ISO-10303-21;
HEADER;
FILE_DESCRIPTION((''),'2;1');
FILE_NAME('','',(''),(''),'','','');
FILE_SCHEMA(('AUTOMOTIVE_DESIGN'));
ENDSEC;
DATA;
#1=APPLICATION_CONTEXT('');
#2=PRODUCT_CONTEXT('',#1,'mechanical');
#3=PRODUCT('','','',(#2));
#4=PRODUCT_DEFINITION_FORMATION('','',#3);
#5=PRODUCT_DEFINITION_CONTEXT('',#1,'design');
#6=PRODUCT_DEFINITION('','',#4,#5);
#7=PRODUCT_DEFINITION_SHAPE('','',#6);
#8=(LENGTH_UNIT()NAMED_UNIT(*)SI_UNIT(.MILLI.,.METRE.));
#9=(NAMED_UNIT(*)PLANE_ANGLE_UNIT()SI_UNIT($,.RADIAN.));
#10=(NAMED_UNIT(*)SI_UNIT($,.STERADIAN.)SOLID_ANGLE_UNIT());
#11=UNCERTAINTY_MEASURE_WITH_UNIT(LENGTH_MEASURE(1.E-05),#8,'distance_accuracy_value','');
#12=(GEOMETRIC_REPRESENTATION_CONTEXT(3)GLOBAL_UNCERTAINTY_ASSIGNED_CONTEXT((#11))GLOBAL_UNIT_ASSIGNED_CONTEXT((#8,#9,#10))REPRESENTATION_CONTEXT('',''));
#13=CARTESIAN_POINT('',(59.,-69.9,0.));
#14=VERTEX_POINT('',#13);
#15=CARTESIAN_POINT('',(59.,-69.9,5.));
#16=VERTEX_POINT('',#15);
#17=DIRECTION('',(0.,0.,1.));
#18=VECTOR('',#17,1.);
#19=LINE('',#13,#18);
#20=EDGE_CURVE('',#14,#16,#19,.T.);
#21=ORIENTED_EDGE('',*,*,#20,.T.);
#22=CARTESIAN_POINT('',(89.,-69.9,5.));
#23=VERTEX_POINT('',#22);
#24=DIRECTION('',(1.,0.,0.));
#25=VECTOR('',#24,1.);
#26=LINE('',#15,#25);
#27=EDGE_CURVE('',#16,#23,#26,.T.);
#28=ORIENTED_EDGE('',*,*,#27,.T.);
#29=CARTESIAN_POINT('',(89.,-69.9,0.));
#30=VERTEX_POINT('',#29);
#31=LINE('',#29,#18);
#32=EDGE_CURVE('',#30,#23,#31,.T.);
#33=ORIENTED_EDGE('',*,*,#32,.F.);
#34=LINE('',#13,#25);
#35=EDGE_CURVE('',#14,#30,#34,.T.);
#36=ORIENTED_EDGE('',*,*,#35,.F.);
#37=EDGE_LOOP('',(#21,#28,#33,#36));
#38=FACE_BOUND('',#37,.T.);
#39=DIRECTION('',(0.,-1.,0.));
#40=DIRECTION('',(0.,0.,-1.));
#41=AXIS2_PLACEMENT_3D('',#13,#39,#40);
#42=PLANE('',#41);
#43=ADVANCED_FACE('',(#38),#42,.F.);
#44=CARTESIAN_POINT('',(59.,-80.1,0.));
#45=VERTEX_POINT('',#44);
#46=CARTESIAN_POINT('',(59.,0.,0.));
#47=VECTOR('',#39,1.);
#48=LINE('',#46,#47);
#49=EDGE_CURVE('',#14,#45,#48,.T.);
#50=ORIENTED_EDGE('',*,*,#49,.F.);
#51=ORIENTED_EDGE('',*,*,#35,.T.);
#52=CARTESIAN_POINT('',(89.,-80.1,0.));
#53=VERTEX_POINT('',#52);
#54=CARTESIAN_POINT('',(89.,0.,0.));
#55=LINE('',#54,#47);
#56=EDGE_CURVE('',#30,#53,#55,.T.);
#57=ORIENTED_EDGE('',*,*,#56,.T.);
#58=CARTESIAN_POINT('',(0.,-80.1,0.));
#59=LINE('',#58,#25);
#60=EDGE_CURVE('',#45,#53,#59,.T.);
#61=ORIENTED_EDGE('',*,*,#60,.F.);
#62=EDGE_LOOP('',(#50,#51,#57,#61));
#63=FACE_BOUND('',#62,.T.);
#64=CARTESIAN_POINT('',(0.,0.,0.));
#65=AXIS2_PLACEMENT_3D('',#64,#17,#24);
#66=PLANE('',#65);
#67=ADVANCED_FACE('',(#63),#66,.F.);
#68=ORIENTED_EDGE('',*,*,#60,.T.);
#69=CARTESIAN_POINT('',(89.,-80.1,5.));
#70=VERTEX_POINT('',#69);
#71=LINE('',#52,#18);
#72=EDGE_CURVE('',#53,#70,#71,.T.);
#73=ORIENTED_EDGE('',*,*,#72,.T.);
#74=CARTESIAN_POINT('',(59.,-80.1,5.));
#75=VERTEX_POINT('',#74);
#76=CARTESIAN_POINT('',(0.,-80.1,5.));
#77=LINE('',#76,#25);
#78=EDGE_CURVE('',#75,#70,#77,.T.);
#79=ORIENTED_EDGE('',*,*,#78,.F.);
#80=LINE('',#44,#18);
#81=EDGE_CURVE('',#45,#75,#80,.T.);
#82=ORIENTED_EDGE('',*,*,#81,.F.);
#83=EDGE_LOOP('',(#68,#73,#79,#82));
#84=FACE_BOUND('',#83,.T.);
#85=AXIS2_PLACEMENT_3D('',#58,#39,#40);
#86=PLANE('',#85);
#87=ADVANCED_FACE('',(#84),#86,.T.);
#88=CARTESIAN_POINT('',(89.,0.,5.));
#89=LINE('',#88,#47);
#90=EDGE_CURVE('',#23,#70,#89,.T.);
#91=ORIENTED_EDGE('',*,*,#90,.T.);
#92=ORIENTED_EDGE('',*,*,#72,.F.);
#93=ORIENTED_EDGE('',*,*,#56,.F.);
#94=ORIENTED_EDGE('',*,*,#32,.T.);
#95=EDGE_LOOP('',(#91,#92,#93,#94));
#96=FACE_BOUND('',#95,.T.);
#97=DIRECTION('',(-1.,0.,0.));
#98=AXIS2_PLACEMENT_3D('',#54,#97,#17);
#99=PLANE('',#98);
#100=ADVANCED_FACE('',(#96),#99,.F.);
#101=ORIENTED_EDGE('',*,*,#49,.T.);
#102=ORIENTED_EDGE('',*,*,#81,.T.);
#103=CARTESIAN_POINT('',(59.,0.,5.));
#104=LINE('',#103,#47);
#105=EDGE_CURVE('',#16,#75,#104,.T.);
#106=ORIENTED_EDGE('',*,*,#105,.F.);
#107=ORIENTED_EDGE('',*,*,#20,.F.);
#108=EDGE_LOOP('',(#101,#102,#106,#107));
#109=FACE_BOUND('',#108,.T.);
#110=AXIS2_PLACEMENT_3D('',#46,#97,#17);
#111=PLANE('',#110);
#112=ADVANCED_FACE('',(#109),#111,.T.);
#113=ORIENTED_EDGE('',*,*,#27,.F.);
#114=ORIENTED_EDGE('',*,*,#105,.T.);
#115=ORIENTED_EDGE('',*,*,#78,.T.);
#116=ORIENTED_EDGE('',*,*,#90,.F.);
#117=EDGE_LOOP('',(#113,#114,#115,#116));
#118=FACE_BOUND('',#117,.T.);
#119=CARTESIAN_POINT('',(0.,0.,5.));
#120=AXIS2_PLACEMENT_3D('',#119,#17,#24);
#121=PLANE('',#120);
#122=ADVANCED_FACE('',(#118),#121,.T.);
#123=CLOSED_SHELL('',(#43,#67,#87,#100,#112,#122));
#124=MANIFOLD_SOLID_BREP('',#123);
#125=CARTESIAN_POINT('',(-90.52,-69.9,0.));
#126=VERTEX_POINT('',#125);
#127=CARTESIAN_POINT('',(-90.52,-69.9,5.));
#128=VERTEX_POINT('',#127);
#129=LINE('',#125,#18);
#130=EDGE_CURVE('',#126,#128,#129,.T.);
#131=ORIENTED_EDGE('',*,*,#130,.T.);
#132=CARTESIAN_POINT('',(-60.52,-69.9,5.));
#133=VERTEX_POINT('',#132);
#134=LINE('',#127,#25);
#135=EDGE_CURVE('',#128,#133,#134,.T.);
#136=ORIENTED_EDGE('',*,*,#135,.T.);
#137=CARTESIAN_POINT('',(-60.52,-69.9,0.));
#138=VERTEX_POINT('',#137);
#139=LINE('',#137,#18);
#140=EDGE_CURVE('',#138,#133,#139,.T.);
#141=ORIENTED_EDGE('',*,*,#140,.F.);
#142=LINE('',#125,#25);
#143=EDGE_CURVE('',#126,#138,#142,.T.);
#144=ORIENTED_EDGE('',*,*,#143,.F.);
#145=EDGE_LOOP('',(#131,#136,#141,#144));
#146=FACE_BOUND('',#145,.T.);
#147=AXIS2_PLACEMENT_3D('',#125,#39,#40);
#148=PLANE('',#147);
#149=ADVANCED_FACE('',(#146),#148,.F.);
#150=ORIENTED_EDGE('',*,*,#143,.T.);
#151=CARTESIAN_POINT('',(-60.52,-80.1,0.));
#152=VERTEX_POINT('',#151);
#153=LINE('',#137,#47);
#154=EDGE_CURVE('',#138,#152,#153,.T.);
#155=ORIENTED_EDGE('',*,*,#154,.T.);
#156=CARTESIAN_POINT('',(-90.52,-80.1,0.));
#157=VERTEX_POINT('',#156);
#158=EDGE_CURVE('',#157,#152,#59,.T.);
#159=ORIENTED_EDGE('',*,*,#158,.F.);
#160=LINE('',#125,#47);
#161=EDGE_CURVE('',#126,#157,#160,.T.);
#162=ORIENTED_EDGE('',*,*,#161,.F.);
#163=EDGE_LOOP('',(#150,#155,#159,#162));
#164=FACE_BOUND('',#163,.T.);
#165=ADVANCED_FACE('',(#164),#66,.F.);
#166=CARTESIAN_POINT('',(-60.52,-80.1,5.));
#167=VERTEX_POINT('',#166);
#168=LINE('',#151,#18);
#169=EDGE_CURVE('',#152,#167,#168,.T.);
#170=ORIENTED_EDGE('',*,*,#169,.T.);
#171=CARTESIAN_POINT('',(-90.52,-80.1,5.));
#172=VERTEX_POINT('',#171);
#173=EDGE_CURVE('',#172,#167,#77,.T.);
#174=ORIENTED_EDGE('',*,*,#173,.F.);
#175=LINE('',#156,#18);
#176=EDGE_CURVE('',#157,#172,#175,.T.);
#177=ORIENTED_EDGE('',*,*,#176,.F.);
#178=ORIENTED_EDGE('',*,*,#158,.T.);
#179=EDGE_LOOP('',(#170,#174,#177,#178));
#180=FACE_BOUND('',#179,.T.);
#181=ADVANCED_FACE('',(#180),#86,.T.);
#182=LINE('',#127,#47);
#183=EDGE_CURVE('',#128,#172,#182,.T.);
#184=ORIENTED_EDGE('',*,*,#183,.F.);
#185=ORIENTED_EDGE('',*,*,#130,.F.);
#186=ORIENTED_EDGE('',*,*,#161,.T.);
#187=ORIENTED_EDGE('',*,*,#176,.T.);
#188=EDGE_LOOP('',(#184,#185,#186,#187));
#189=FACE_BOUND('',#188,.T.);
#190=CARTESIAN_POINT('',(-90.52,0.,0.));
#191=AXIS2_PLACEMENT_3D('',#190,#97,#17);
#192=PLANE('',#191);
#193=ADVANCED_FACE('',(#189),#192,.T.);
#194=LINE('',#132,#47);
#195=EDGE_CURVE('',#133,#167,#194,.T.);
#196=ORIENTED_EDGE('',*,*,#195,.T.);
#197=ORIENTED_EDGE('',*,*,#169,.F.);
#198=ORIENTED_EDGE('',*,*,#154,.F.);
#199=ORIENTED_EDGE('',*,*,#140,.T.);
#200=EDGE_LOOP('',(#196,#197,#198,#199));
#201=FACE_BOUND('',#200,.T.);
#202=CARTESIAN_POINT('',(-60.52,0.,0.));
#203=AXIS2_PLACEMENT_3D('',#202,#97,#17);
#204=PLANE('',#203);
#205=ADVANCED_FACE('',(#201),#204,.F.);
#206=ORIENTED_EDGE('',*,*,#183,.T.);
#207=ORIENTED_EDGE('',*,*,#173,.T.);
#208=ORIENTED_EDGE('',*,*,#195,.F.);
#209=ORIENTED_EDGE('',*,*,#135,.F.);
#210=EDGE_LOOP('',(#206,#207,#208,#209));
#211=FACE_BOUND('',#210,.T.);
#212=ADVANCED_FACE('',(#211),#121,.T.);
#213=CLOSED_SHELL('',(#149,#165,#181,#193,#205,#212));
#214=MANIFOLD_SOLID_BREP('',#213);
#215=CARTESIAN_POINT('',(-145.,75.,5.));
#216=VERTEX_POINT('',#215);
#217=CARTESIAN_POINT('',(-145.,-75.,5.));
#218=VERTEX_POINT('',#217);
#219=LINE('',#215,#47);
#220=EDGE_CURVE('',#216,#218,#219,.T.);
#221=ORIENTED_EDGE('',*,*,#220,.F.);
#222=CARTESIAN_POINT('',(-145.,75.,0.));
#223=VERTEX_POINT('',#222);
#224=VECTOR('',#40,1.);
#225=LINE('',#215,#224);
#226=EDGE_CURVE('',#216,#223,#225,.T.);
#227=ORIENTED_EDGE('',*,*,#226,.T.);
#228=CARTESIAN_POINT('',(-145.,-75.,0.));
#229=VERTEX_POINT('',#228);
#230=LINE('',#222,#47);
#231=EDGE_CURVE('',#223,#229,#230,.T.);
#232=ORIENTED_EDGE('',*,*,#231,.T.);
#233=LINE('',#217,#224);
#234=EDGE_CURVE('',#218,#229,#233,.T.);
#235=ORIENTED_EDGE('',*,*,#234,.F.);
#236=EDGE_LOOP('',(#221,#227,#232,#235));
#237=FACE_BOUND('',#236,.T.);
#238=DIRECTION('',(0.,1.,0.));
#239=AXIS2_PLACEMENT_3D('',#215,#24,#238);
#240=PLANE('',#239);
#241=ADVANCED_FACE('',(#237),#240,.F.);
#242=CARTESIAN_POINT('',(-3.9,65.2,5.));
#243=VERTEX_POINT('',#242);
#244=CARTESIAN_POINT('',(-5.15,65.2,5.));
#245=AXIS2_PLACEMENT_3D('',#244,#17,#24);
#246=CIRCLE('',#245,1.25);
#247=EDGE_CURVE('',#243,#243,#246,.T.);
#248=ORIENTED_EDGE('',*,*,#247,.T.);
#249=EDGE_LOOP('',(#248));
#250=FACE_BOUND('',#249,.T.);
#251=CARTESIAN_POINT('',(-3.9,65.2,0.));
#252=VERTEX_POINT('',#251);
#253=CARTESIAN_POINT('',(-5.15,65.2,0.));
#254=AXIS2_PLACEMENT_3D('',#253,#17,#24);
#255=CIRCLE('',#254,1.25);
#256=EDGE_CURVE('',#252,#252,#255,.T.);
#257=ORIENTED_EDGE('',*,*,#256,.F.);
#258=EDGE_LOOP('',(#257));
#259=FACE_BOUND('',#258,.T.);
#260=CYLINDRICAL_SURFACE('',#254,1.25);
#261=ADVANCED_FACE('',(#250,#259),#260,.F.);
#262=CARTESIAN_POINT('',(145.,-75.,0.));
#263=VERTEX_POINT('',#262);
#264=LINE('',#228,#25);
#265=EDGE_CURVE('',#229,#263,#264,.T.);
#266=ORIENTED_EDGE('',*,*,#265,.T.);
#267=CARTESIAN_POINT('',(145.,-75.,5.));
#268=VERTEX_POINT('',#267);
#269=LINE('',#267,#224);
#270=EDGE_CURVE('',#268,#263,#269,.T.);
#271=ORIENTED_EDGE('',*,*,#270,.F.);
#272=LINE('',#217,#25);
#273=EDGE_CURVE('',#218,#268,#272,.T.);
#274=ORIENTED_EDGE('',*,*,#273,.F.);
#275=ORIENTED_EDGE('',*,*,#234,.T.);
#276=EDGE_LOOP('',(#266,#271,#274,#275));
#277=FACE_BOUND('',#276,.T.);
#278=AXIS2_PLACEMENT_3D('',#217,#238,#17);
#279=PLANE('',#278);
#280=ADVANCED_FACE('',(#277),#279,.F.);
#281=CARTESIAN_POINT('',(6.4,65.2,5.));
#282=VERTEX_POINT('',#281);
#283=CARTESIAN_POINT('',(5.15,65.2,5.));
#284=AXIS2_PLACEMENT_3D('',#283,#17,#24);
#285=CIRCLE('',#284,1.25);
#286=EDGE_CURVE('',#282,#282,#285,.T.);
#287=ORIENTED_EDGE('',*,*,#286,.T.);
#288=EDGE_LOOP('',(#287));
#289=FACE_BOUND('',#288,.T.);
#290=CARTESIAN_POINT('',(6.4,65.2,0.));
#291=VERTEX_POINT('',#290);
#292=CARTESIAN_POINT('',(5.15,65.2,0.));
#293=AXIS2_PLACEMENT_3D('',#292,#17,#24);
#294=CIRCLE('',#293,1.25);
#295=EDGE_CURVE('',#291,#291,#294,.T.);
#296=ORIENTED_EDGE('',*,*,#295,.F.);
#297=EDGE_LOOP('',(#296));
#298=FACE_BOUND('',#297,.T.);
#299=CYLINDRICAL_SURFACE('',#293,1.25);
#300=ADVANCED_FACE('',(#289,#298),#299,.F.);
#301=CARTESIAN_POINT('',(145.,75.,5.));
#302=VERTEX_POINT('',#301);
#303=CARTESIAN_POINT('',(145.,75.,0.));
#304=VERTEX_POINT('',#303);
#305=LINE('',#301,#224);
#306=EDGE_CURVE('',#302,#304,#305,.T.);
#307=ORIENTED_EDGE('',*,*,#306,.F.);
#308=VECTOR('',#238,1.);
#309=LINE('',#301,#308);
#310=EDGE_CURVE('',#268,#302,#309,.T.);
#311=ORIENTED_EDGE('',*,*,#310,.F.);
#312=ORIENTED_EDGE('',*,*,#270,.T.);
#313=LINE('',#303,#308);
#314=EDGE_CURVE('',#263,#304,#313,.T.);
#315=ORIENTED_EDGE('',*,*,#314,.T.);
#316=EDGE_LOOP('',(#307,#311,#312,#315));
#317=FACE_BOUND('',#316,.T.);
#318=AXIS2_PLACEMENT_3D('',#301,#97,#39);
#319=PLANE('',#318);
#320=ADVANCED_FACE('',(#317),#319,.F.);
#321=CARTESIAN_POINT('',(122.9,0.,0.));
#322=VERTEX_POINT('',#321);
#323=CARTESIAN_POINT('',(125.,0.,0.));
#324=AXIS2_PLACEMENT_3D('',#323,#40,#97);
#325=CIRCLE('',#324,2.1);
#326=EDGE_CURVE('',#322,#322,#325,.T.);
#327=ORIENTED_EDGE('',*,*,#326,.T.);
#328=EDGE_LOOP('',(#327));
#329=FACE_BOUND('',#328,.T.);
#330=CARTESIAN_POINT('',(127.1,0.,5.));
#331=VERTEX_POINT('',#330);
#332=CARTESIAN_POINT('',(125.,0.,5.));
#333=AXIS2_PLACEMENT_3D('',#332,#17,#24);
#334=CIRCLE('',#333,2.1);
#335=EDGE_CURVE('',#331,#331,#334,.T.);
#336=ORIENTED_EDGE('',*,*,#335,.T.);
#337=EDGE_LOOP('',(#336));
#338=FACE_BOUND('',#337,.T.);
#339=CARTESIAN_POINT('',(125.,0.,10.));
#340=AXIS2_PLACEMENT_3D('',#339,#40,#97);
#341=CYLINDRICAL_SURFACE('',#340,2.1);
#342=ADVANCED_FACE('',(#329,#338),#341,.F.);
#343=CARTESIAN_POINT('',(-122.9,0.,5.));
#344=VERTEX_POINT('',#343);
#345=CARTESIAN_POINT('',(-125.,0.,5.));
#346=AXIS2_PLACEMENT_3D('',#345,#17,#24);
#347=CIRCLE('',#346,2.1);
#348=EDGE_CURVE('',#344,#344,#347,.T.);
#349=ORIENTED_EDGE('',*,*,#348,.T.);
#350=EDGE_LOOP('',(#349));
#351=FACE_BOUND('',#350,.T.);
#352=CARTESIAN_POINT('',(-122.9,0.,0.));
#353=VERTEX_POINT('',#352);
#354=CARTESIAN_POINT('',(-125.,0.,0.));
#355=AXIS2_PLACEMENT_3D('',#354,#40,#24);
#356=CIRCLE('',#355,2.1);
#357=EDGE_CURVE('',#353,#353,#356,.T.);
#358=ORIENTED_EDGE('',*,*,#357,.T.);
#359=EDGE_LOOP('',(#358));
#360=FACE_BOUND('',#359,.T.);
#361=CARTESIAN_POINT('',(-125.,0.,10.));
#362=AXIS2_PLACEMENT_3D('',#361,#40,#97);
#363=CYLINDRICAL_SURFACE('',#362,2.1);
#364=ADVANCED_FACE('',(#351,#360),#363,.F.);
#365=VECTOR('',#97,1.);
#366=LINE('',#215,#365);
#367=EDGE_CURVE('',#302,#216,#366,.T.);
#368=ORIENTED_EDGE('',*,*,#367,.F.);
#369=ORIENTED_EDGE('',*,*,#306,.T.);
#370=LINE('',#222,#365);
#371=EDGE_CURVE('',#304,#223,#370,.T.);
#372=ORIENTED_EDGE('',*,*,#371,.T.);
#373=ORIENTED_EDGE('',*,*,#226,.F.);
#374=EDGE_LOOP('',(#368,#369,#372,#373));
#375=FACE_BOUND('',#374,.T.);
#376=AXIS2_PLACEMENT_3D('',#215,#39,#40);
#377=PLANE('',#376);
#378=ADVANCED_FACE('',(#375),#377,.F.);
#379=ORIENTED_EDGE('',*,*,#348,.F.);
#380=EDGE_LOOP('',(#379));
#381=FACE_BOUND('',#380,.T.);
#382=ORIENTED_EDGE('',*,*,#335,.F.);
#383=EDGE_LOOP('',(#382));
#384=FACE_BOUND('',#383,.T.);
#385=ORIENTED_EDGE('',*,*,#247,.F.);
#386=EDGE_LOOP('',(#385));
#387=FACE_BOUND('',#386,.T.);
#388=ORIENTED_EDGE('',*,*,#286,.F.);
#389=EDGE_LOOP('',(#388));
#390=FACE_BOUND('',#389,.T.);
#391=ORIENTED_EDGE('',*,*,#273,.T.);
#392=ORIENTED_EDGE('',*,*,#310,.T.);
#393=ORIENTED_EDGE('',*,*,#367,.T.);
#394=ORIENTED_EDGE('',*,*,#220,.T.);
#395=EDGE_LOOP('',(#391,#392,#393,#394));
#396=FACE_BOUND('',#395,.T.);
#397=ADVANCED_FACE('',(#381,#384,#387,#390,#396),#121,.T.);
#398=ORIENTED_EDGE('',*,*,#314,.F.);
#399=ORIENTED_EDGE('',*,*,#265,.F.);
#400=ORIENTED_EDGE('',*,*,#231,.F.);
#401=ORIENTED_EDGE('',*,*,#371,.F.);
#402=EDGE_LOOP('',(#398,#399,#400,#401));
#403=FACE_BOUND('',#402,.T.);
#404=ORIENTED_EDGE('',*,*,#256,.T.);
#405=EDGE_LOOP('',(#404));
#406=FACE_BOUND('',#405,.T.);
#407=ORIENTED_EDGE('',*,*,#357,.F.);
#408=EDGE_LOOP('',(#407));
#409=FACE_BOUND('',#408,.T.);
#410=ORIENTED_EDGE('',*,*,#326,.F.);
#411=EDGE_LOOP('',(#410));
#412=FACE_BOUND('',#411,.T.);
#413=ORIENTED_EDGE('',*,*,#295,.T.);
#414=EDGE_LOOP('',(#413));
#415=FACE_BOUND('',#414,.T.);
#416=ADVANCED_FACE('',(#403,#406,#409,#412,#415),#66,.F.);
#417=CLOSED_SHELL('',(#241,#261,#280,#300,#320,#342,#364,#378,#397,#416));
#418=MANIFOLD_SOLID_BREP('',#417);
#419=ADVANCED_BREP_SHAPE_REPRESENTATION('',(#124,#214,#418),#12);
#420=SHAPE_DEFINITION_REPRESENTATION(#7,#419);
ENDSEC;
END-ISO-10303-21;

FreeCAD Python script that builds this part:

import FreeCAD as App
import Part
import Sketcher

V = App.Vector

doc = App.newDocument("Part")
body = doc.addObject("PartDesign::Body", "Body")

sketch1 = body.newObject("Sketcher::SketchObject", "Sketch")
sketch1.AttachmentSupport = (doc.getObject("XY_Plane"), [""])
sketch1.MapMode = "FlatFace"
sketch1.addGeometry([
    Part.LineSegment(V(-145, 75, 0), V(-145, -75, 0)),
    Part.LineSegment(V(-145, -75, 0), V(145, -75, 0)),
    Part.LineSegment(V(145, -75, 0), V(145, 75, 0)),
    Part.LineSegment(V(145, 75, 0), V(-145, 75, 0)),
], False)
sketch1.addConstraint([
    Sketcher.Constraint("Coincident", 0, 2, 1, 1),
    Sketcher.Constraint("Coincident", 1, 2, 2, 1),
    Sketcher.Constraint("Coincident", 2, 2, 3, 1),
    Sketcher.Constraint("Coincident", 3, 2, 0, 1),
    Sketcher.Constraint("Vertical", 0),
    Sketcher.Constraint("Horizontal", 1),
    Sketcher.Constraint("Vertical", 2),
    Sketcher.Constraint("Horizontal", 3),
    Sketcher.Constraint("Symmetric", 0, 2, 2, 2, -1, 1),
    Sketcher.Constraint("DistanceX", 1, 1, 1, 2, 290.0),
    Sketcher.Constraint("DistanceY", 0, 2, 0, 1, 150.0),
])
pad1 = body.newObject("PartDesign::Pad", "Pad")
pad1.Profile = sketch1
pad1.Length = 5

sketch2 = body.newObject("Sketcher::SketchObject", "Sketch001")
sketch2.AttachmentSupport = (doc.getObject("XY_Plane"), [""])
sketch2.MapMode = "FlatFace"
sketch2.AttachmentOffset = App.Placement(V(0, 0, 5), App.Rotation())
sketch2.addGeometry([
    Part.Circle(V(-5.2, 65.2, 0), V(0, 0, 1), 1.2),
    Part.Circle(V(5.2, 65.2, 0), V(0, 0, 1), 1.2),
], False)
sketch2.addConstraint([
    Sketcher.Constraint("Equal", 0, 1),
    Sketcher.Constraint("Symmetric", 0, 3, 1, 3, -2),
    Sketcher.Constraint("Diameter", 0, 2.5),
    Sketcher.Constraint("DistanceY", -1, 1, 0, 3, 65.2),
    Sketcher.Constraint("DistanceX", 0, 3, 1, 3, 10.3),
])
pocket1 = body.newObject("PartDesign::Pocket", "Pocket")
pocket1.Profile = sketch2
pocket1.Length = 5

sketch3 = body.newObject("Sketcher::SketchObject", "Sketch002")
sketch3.AttachmentSupport = (doc.getObject("XY_Plane"), [""])
sketch3.MapMode = "FlatFace"
sketch3.addGeometry([
    Part.Circle(V(125, 0, 0), V(0, 0, 1), 2.1),
    Part.Circle(V(-125, 0, 0), V(0, 0, 1), 2.1),
], False)
sketch3.addConstraint([
    Sketcher.Constraint("Equal", 0, 1),
    Sketcher.Constraint("Symmetric", 0, 3, 1, 3, -1, 1),
    Sketcher.Constraint("PointOnObject", 0, 3, -1),
    Sketcher.Constraint("Diameter", 0, 4.2),
    Sketcher.Constraint("DistanceX", -1, 1, 0, 3, 125.0),
])
pocket2 = body.newObject("PartDesign::Pocket", "Pocket001")
pocket2.Profile = sketch3
pocket2.Length = 10
pocket2.Reversed = True
body2 = doc.addObject("PartDesign::Body", "Body001")

sketch4 = body2.newObject("Sketcher::SketchObject", "Sketch003")
sketch4.AttachmentSupport = (doc.getObject("XY_Plane001"), [""])
sketch4.MapMode = "FlatFace"
sketch4.AttachmentOffset = App.Placement(V(0, 0, 5), App.Rotation())
sketch4.addGeometry([
    Part.LineSegment(V(-91, -70, 0), V(-91, -80, 0)),
    Part.LineSegment(V(-91, -80, 0), V(-61, -80, 0)),
    Part.LineSegment(V(-61, -80, 0), V(-61, -70, 0)),
    Part.LineSegment(V(-61, -70, 0), V(-91, -70, 0)),
], False)
sketch4.addConstraint([
    Sketcher.Constraint("Coincident", 0, 2, 1, 1),
    Sketcher.Constraint("Coincident", 1, 2, 2, 1),
    Sketcher.Constraint("Coincident", 2, 2, 3, 1),
    Sketcher.Constraint("Coincident", 3, 2, 0, 1),
    Sketcher.Constraint("Vertical", 0),
    Sketcher.Constraint("Horizontal", 1),
    Sketcher.Constraint("Vertical", 2),
    Sketcher.Constraint("Horizontal", 3),
    Sketcher.Constraint("DistanceX", 1, 1, 1, 2, 30.0),
    Sketcher.Constraint("DistanceY", 0, 2, 0, 1, 10.2),
    Sketcher.Constraint("DistanceY", 0, 2, -1, 1, 80.1),
    Sketcher.Constraint("DistanceX", 0, 2, -1, 1, 90.52),
])
pad2 = body2.newObject("PartDesign::Pad", "Pad001")
pad2.Profile = sketch4
pad2.Length = 5
pad2.Reversed = True
body3 = doc.addObject("PartDesign::Body", "Body002")

sketch5 = body3.newObject("Sketcher::SketchObject", "Sketch004")
sketch5.AttachmentSupport = (doc.getObject("XY_Plane002"), [""])
sketch5.MapMode = "FlatFace"
sketch5.AttachmentOffset = App.Placement(V(0, 0, 5), App.Rotation())
sketch5.addGeometry([
    Part.LineSegment(V(59, -70, 0), V(59, -80, 0)),
    Part.LineSegment(V(59, -80, 0), V(89, -80, 0)),
    Part.LineSegment(V(89, -80, 0), V(89, -70, 0)),
    Part.LineSegment(V(89, -70, 0), V(59, -70, 0)),
], False)
sketch5.addConstraint([
    Sketcher.Constraint("Coincident", 0, 2, 1, 1),
    Sketcher.Constraint("Coincident", 1, 2, 2, 1),
    Sketcher.Constraint("Coincident", 2, 2, 3, 1),
    Sketcher.Constraint("Coincident", 3, 2, 0, 1),
    Sketcher.Constraint("Vertical", 0),
    Sketcher.Constraint("Horizontal", 1),
    Sketcher.Constraint("Vertical", 2),
    Sketcher.Constraint("Horizontal", 3),
    Sketcher.Constraint("DistanceX", 1, 1, 1, 2, 30.0),
    Sketcher.Constraint("DistanceY", 0, 2, 0, 1, 10.2),
    Sketcher.Constraint("DistanceX", -1, 1, 0, 2, 59.0),
    Sketcher.Constraint("DistanceY", 0, 2, -1, 1, 80.1),
])
pad3 = body3.newObject("PartDesign::Pad", "Pad002")
pad3.Profile = sketch5
pad3.Length = 5
pad3.Reversed = True

doc.recompute()
